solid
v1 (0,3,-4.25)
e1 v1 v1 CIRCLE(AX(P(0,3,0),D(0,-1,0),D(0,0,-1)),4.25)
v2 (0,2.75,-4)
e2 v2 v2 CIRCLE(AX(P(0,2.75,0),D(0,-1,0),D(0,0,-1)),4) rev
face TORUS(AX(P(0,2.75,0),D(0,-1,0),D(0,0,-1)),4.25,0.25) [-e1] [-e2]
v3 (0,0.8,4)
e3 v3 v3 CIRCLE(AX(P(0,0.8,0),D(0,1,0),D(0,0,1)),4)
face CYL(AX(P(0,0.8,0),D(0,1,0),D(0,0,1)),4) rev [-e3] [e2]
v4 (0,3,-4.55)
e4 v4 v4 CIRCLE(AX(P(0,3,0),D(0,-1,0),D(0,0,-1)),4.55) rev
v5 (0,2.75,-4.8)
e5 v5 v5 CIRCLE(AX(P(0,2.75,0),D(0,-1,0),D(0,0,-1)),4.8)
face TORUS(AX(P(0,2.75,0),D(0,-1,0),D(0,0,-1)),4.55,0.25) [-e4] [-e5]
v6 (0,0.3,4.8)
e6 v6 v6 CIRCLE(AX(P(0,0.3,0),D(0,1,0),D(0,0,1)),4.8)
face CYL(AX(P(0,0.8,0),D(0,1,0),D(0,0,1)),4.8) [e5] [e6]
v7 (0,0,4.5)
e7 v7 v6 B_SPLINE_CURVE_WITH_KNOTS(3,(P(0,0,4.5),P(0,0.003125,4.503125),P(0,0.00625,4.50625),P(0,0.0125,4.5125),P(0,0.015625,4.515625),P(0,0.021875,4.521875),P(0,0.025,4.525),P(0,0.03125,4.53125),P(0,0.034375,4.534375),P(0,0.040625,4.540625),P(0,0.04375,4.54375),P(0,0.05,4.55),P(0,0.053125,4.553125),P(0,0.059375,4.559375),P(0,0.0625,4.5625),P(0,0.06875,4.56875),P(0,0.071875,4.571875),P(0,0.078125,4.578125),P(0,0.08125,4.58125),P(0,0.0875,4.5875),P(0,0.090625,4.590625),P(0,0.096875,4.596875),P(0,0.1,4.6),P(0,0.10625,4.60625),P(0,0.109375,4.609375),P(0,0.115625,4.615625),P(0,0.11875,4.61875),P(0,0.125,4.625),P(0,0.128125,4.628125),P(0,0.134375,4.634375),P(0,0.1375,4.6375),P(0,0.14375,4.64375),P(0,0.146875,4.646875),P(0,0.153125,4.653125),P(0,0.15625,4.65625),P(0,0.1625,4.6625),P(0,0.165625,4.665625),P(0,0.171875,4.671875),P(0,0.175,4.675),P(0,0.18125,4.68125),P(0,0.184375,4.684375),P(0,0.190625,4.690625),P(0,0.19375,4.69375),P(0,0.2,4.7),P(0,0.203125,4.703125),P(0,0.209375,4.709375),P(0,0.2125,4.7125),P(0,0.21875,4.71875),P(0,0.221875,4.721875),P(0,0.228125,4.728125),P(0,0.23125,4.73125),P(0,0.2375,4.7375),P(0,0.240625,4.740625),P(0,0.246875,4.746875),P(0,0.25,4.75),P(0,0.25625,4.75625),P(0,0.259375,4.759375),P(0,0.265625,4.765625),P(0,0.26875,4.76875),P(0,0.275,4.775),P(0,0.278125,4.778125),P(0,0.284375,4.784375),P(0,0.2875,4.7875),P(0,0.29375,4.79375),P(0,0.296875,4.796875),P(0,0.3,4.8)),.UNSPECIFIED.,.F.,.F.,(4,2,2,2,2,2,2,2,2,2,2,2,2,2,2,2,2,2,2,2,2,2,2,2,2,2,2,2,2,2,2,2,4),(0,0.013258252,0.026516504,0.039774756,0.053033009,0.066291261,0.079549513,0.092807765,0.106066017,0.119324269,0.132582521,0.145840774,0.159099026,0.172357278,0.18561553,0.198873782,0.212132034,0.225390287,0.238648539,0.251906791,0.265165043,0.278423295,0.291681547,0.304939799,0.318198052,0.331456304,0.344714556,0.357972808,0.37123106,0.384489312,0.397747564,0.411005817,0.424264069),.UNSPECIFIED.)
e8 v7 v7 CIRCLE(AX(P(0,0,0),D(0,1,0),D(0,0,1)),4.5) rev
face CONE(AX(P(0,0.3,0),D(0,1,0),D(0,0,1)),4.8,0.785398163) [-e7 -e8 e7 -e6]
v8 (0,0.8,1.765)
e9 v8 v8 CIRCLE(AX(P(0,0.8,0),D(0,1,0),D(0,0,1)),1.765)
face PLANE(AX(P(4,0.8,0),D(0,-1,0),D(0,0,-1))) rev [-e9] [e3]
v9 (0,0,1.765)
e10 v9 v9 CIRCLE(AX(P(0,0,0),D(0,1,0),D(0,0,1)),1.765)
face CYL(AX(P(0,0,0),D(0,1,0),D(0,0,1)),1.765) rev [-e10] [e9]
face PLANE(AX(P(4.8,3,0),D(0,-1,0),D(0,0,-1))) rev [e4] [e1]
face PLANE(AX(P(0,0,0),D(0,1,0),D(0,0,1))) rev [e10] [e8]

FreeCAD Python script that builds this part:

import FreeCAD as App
import Part
import Sketcher

V = App.Vector
Q = App.Units.Quantity


def edges_at(feature, points):
    """Names of the edges that pass closest to the given points."""
    edges = feature.Shape.Edges
    near = lambda p: min(range(len(edges)), key=lambda i: edges[i].distToShape(Part.Vertex(*p))[0])
    return sorted({f"Edge{near(p) + 1}" for p in points})

doc = App.newDocument("Part")
body = doc.addObject("PartDesign::Body", "Body")

# Sketch on XY plane
sketch1 = doc.addObject("Sketcher::SketchObject", "Sketch")
body.addObject(sketch1)
sketch1.AttachmentSupport = (doc.XY_Plane, [""])
sketch1.MapMode = "FlatFace"
sketch1.addGeometry([
    Part.LineSegment(V(0, 0, 0), V(4.8, 0, 0)),  # 0
    Part.LineSegment(V(4.8, 0, 0), V(4.8, 3, 0)),  # 1
    Part.LineSegment(V(4.8, 3, 0), V(4, 3, 0)),  # 2
    Part.LineSegment(V(4, 3, 0), V(4, 0.8, 0)),  # 3
    Part.LineSegment(V(4, 0.8, 0), V(0, 0.8, 0)),  # 4
    Part.LineSegment(V(0, 0.8, 0), V(0, 0, 0)),  # 5
], False)
sketch1.addConstraint([
    Sketcher.Constraint("Coincident", 0, 2, 1, 1),
    Sketcher.Constraint("Coincident", 1, 2, 2, 1),
    Sketcher.Constraint("Coincident", 2, 2, 3, 1),
    Sketcher.Constraint("Coincident", 3, 2, 4, 1),
    Sketcher.Constraint("Coincident", 4, 2, 5, 1),
    Sketcher.Constraint("Coincident", 5, 2, 0, 1),
    Sketcher.Constraint("Horizontal", 0),
    Sketcher.Constraint("Vertical", 1),
    Sketcher.Constraint("Horizontal", 2),
    Sketcher.Constraint("Vertical", 3),
    Sketcher.Constraint("Horizontal", 4),
    Sketcher.Constraint("Vertical", 5),
    Sketcher.Constraint("Coincident", 5, 2, -1, 1),
    Sketcher.Constraint("Equal", 2, 5),
    Sketcher.Constraint("DistanceX", 4, 2, 4, 1, Q("4 mm")),
    Sketcher.Constraint("DistanceY", 1, 1, 1, 2, Q("3 mm")),
    Sketcher.Constraint("DistanceX", 0, 1, 0, 2, Q("4.8 mm")),
])
revolution = doc.addObject("PartDesign::Revolution", "Revolution")
body.addObject(revolution)
revolution.Profile = sketch1
revolution.ReferenceAxis = (sketch1, ["V_Axis"])
revolution.Angle = 360

# Sketch on XZ plane
sketch2 = doc.addObject("Sketcher::SketchObject", "Sketch001")
body.addObject(sketch2)
sketch2.AttachmentSupport = (doc.XZ_Plane, [""])
sketch2.MapMode = "FlatFace"
sketch2.AttachmentOffset = App.Placement(V(0, 0, -0.8), App.Rotation())
sketch2.addGeometry(Part.Circle(V(0, 0, 0), V(0, 0, 1), 1.765), False)
sketch2.addConstraint([
    Sketcher.Constraint("Coincident", 0, 3, -1, 1),
    Sketcher.Constraint("Diameter", 0, Q("3.53 mm")),
])
pocket1 = doc.addObject("PartDesign::Pocket", "Pocket")
body.addObject(pocket1)
pocket1.Profile = sketch2
pocket1.Type = "ThroughAll"
pocket1.Reversed = True
doc.recompute()

fillet = doc.addObject("PartDesign::Fillet", "Fillet")
body.addObject(fillet)
fillet.Base = (pocket1, edges_at(pocket1, [(0, 3, -4), (0, 3, -4.8)]))
fillet.Radius = 0.25
doc.recompute()

chamfer = doc.addObject("PartDesign::Chamfer", "Chamfer")
body.addObject(chamfer)
chamfer.Base = (fillet, edges_at(fillet, [(0, 0, -4.8)]))
chamfer.Size = 0.3

doc.recompute()
